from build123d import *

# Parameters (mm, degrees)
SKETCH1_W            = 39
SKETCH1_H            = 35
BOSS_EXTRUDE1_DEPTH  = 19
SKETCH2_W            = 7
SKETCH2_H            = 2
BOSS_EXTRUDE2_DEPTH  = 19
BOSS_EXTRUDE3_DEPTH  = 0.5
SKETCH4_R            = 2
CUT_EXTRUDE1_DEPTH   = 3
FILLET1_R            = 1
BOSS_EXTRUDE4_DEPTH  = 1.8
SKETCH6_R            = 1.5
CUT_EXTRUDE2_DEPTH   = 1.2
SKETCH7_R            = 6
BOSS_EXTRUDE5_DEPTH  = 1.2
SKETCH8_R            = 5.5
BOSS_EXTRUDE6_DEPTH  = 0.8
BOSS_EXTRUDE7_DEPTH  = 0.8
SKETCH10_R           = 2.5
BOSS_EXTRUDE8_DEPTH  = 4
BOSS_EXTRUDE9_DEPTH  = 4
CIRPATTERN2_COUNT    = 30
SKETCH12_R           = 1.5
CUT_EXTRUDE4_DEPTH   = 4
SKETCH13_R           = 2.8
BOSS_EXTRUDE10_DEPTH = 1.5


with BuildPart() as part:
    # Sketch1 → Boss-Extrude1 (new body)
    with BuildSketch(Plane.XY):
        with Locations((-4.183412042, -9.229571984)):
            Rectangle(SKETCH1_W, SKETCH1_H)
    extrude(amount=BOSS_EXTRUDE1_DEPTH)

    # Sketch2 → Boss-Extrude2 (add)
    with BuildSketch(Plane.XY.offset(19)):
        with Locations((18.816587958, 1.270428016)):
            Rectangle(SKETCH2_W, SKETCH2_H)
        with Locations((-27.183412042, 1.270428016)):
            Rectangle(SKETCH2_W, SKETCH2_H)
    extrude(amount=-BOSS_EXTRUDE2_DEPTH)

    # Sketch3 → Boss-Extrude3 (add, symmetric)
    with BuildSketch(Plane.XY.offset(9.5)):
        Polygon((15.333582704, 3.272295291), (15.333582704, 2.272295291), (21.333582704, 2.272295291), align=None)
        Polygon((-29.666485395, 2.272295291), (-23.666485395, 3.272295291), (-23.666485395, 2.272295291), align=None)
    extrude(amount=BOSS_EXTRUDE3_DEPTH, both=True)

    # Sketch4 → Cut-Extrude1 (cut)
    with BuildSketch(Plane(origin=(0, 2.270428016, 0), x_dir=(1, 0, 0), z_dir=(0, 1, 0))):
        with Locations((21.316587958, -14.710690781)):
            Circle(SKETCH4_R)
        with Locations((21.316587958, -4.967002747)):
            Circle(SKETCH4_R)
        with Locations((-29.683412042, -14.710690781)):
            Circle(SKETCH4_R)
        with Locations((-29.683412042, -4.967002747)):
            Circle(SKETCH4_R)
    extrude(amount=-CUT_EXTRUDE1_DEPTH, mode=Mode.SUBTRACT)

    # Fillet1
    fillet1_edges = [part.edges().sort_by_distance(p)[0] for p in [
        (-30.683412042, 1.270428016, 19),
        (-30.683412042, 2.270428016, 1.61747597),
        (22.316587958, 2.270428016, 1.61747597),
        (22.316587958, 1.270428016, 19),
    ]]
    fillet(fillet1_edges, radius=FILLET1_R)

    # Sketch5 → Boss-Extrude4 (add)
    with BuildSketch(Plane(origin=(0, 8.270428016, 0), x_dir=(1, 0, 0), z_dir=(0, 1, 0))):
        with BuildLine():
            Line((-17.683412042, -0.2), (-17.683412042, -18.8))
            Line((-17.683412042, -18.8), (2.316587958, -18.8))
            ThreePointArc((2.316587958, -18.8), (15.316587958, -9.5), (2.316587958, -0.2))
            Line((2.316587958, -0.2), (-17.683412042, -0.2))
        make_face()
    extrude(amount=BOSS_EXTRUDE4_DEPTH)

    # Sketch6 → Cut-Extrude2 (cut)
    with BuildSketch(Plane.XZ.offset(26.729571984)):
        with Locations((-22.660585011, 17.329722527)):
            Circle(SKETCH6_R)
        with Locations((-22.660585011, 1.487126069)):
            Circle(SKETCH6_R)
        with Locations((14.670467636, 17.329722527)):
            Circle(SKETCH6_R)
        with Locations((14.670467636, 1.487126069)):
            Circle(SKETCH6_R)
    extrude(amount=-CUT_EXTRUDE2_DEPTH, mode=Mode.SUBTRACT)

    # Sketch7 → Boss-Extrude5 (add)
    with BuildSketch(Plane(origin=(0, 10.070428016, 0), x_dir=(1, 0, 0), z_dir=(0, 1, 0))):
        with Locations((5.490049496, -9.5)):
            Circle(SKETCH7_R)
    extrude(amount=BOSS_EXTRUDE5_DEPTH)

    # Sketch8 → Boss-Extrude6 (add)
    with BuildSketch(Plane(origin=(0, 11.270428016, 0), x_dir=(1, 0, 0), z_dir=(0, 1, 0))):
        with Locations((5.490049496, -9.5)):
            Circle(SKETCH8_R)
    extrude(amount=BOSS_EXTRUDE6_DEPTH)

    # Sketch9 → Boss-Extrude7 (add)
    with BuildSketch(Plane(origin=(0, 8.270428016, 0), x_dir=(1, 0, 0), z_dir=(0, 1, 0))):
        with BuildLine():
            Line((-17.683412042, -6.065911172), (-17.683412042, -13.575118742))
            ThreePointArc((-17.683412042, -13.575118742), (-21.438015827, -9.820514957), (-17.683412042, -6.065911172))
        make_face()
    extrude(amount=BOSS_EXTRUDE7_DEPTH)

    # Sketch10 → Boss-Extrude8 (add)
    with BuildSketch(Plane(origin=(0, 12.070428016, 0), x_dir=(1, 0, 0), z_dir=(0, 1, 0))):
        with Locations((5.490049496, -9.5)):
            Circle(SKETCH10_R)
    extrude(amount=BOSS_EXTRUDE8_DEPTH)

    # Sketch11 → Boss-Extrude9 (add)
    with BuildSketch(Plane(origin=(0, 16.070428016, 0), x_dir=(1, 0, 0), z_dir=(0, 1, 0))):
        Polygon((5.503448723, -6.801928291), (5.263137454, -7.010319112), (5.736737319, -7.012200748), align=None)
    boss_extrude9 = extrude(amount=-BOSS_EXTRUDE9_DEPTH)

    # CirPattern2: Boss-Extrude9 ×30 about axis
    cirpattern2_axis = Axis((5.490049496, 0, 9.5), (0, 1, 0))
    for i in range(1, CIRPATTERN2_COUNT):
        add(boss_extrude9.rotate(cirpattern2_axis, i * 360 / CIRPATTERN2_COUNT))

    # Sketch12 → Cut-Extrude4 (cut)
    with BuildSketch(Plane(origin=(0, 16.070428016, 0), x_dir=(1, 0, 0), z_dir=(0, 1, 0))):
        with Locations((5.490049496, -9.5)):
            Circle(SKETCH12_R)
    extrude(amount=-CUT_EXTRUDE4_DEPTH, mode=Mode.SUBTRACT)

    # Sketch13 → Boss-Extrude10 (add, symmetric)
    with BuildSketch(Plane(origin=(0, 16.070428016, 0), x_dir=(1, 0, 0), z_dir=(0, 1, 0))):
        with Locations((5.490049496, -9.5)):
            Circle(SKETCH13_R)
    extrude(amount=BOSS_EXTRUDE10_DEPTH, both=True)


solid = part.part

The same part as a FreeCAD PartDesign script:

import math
import FreeCAD as App
import Part
import Sketcher
from FreeCAD import Vector
Q = App.Units.Quantity


def edges_at(feature, points):
    """Names of the edges that pass closest to the given points."""
    edges = feature.Shape.Edges
    near = lambda p: min(range(len(edges)), key=lambda i: edges[i].distToShape(Part.Vertex(*p))[0])
    return sorted({f"Edge{near(p) + 1}" for p in points})

doc = App.newDocument("Part")
body = doc.addObject("PartDesign::Body", "Body")
body.AllowCompound = True

sketch1 = body.newObject("Sketcher::SketchObject", "Sketch")
sketch1.AttachmentSupport = (doc.getObject("XY_Plane"), [""])
sketch1.MapMode = "FlatFace"
sketch1.addGeometry(Part.LineSegment(Vector(-23.683412, 8.270428, 0), Vector(-23.683412, -26.729572, 0)), False)
sketch1.addGeometry(Part.LineSegment(Vector(-23.683412, -26.729572, 0), Vector(15.316588, -26.729572, 0)), False)
sketch1.addGeometry(Part.LineSegment(Vector(15.316588, -26.729572, 0), Vector(15.316588, 8.270428, 0)), False)
sketch1.addGeometry(Part.LineSegment(Vector(15.316588, 8.270428, 0), Vector(-23.683412, 8.270428, 0)), False)
sketch1.addConstraint(Sketcher.Constraint("Coincident", 0, 2, 1, 1))
sketch1.addConstraint(Sketcher.Constraint("Coincident", 1, 2, 2, 1))
sketch1.addConstraint(Sketcher.Constraint("Coincident", 2, 2, 3, 1))
sketch1.addConstraint(Sketcher.Constraint("Coincident", 3, 2, 0, 1))
sketch1.addConstraint(Sketcher.Constraint("Vertical", 0))
sketch1.addConstraint(Sketcher.Constraint("Horizontal", 1))
sketch1.addConstraint(Sketcher.Constraint("Vertical", 2))
sketch1.addConstraint(Sketcher.Constraint("Horizontal", 3))
sketch1.addConstraint(Sketcher.Constraint("DistanceX", 1, 1, 1, 2, Q("39 mm")))
sketch1.addConstraint(Sketcher.Constraint("DistanceY", 0, 2, 0, 1, Q("35 mm")))
sketch1.addConstraint(Sketcher.Constraint("DistanceY", 0, 2, -1, 1, Q("26.729572 mm")))
sketch1.addConstraint(Sketcher.Constraint("DistanceX", 0, 2, -1, 1, Q("23.683412 mm")))
pad1 = body.newObject("PartDesign::Pad", "Pad")
pad1.Profile = sketch1
pad1.Length = 19

sketch2 = body.newObject("Sketcher::SketchObject", "Sketch001")
sketch2.AttachmentSupport = (doc.getObject("XY_Plane"), [""])
sketch2.MapMode = "FlatFace"
sketch2.AttachmentOffset = App.Placement(Vector(0, 0, 19), App.Rotation())
sketch2.addGeometry(Part.LineSegment(Vector(15.316588, 2.270428, 0), Vector(15.316588, 0.270428, 0)), False)
sketch2.addGeometry(Part.LineSegment(Vector(15.316588, 0.270428, 0), Vector(22.316588, 0.270428, 0)), False)
sketch2.addGeometry(Part.LineSegment(Vector(22.316588, 0.270428, 0), Vector(22.316588, 2.270428, 0)), False)
sketch2.addGeometry(Part.LineSegment(Vector(22.316588, 2.270428, 0), Vector(15.316588, 2.270428, 0)), False)
sketch2.addGeometry(Part.LineSegment(Vector(-30.683412, 2.270428, 0), Vector(-30.683412, 0.270428, 0)), False)
sketch2.addGeometry(Part.LineSegment(Vector(-30.683412, 0.270428, 0), Vector(-23.683412, 0.270428, 0)), False)
sketch2.addGeometry(Part.LineSegment(Vector(-23.683412, 0.270428, 0), Vector(-23.683412, 2.270428, 0)), False)
sketch2.addGeometry(Part.LineSegment(Vector(-23.683412, 2.270428, 0), Vector(-30.683412, 2.270428, 0)), False)
sketch2.addConstraint(Sketcher.Constraint("Coincident", 0, 2, 1, 1))
sketch2.addConstraint(Sketcher.Constraint("Coincident", 1, 2, 2, 1))
sketch2.addConstraint(Sketcher.Constraint("Coincident", 2, 2, 3, 1))
sketch2.addConstraint(Sketcher.Constraint("Coincident", 3, 2, 0, 1))
sketch2.addConstraint(Sketcher.Constraint("Coincident", 4, 2, 5, 1))
sketch2.addConstraint(Sketcher.Constraint("Coincident", 5, 2, 6, 1))
sketch2.addConstraint(Sketcher.Constraint("Coincident", 6, 2, 7, 1))
sketch2.addConstraint(Sketcher.Constraint("Coincident", 7, 2, 4, 1))
sketch2.addConstraint(Sketcher.Constraint("Vertical", 0))
sketch2.addConstraint(Sketcher.Constraint("Horizontal", 1))
sketch2.addConstraint(Sketcher.Constraint("Vertical", 2))
sketch2.addConstraint(Sketcher.Constraint("Horizontal", 3))
sketch2.addConstraint(Sketcher.Constraint("Vertical", 4))
sketch2.addConstraint(Sketcher.Constraint("Horizontal", 5))
sketch2.addConstraint(Sketcher.Constraint("Vertical", 6))
sketch2.addConstraint(Sketcher.Constraint("Horizontal", 7))
sketch2.addConstraint(Sketcher.Constraint("Horizontal", 1, 2, 4, 2))
sketch2.addConstraint(Sketcher.Constraint("Horizontal", 3, 2, 6, 2))
sketch2.addConstraint(Sketcher.Constraint("Equal", 3, 5))
sketch2.addConstraint(Sketcher.Constraint("DistanceX", 1, 1, 1, 2, Q("7 mm")))
sketch2.addConstraint(Sketcher.Constraint("DistanceY", 0, 2, 0, 1, Q("2 mm")))
sketch2.addConstraint(Sketcher.Constraint("DistanceX", 4, 2, 0, 2, Q("46 mm")))
sketch2.addConstraint(Sketcher.Constraint("DistanceY", -1, 1, 0, 2, Q("0.270428 mm")))
sketch2.addConstraint(Sketcher.Constraint("DistanceX", -1, 1, 0, 2, Q("15.316588 mm")))
pad2 = body.newObject("PartDesign::Pad", "Pad001")
pad2.Profile = sketch2
pad2.Length = 19
pad2.Reversed = True

sketch3 = body.newObject("Sketcher::SketchObject", "Sketch002")
sketch3.AttachmentSupport = (doc.getObject("XY_Plane"), [""])
sketch3.MapMode = "FlatFace"
sketch3.AttachmentOffset = App.Placement(Vector(0, 0, 9.5), App.Rotation())
sketch3.addGeometry(Part.LineSegment(Vector(15.333583, 3.272295, 0), Vector(15.333583, 2.272295, 0)), False)
sketch3.addGeometry(Part.LineSegment(Vector(15.333583, 2.272295, 0), Vector(21.333583, 2.272295, 0)), False)
sketch3.addGeometry(Part.LineSegment(Vector(21.333583, 2.272295, 0), Vector(15.333583, 3.272295, 0)), False)
sketch3.addGeometry(Part.LineSegment(Vector(-23.666485, 3.272295, 0), Vector(-29.666485, 2.272295, 0)), False)
sketch3.addGeometry(Part.LineSegment(Vector(-29.666485, 2.272295, 0), Vector(-23.666485, 2.272295, 0)), False)
sketch3.addGeometry(Part.LineSegment(Vector(-23.666485, 2.272295, 0), Vector(-23.666485, 3.272295, 0)), False)
sketch3.addConstraint(Sketcher.Constraint("Coincident", 0, 2, 1, 1))
sketch3.addConstraint(Sketcher.Constraint("Coincident", 1, 2, 2, 1))
sketch3.addConstraint(Sketcher.Constraint("Coincident", 2, 2, 0, 1))
sketch3.addConstraint(Sketcher.Constraint("Coincident", 3, 2, 4, 1))
sketch3.addConstraint(Sketcher.Constraint("Coincident", 4, 2, 5, 1))
sketch3.addConstraint(Sketcher.Constraint("Coincident", 5, 2, 3, 1))
sketch3.addConstraint(Sketcher.Constraint("Vertical", 0))
sketch3.addConstraint(Sketcher.Constraint("Horizontal", 1))
sketch3.addConstraint(Sketcher.Constraint("Horizontal", 4))
sketch3.addConstraint(Sketcher.Constraint("Vertical", 5))
sketch3.addConstraint(Sketcher.Constraint("Horizontal", 1, 2, 3, 2))
sketch3.addConstraint(Sketcher.Constraint("Horizontal", 2, 2, 5, 2))
sketch3.addConstraint(Sketcher.Constraint("Equal", 1, 4))
sketch3.addConstraint(Sketcher.Constraint("DistanceX", 1, 1, 1, 2, Q("6 mm")))
sketch3.addConstraint(Sketcher.Constraint("DistanceY", 0, 2, 0, 1, Q("1 mm")))
sketch3.addConstraint(Sketcher.Constraint("DistanceX", 3, 2, 0, 2, Q("45.000068 mm")))
sketch3.addConstraint(Sketcher.Constraint("DistanceX", -1, 1, 0, 2, Q("15.333583 mm")))
sketch3.addConstraint(Sketcher.Constraint("DistanceY", -1, 1, 0, 2, Q("2.272295 mm")))
pad3 = body.newObject("PartDesign::Pad", "Pad002")
pad3.Profile = sketch3
pad3.Length = 1
pad3.Midplane = True

sketch4 = body.newObject("Sketcher::SketchObject", "Sketch003")
sketch4.AttachmentSupport = (doc.getObject("XZ_Plane"), [""])
sketch4.MapMode = "FlatFace"
sketch4.AttachmentOffset = App.Placement(Vector(0, 0, -2.270428), App.Rotation())
sketch4.addGeometry(Part.Circle(Vector(21.316588, 14.710691, 0), Vector(0, 0, 1), 2), False)
sketch4.addGeometry(Part.Circle(Vector(21.316588, 4.967003, 0), Vector(0, 0, 1), 2), False)
sketch4.addGeometry(Part.Circle(Vector(-29.683412, 14.710691, 0), Vector(0, 0, 1), 2), False)
sketch4.addGeometry(Part.Circle(Vector(-29.683412, 4.967003, 0), Vector(0, 0, 1), 2), False)
sketch4.addConstraint(Sketcher.Constraint("Equal", 0, 1))
sketch4.addConstraint(Sketcher.Constraint("Equal", 1, 2))
sketch4.addConstraint(Sketcher.Constraint("Equal", 2, 3))
sketch4.addConstraint(Sketcher.Constraint("Horizontal", 0, 3, 2, 3))
sketch4.addConstraint(Sketcher.Constraint("Horizontal", 1, 3, 3, 3))
sketch4.addConstraint(Sketcher.Constraint("Vertical", 0, 3, 1, 3))
sketch4.addConstraint(Sketcher.Constraint("Vertical", 2, 3, 3, 3))
sketch4.addConstraint(Sketcher.Constraint("Diameter", 0, Q("4 mm")))
sketch4.addConstraint(Sketcher.Constraint("DistanceX", 2, 3, 0, 3, Q("51 mm")))
sketch4.addConstraint(Sketcher.Constraint("DistanceY", -1, 1, 0, 3, Q("14.710691 mm")))
sketch4.addConstraint(Sketcher.Constraint("DistanceY", 1, 3, 0, 3, Q("9.743688 mm")))
sketch4.addConstraint(Sketcher.Constraint("DistanceX", -1, 1, 0, 3, Q("21.316588 mm")))
pocket1 = body.newObject("PartDesign::Pocket", "Pocket")
pocket1.Profile = sketch4
pocket1.Length = 3
pocket1.Reversed = True
doc.recompute()

fillet = body.newObject("PartDesign::Fillet", "Fillet")
fillet.Base = (pocket1, edges_at(pocket1, [
    (-30.683, 1.27, 19),
    (-30.683, 2.27, 1.617),
    (22.317, 2.27, 1.617),
    (22.317, 1.27, 19),
]))
fillet.Radius = 1

sketch5 = body.newObject("Sketcher::SketchObject", "Sketch004")
sketch5.AttachmentSupport = (doc.getObject("XZ_Plane"), [""])
sketch5.MapMode = "FlatFace"
sketch5.AttachmentOffset = App.Placement(Vector(0, 0, -8.270428), App.Rotation())
sketch5.addGeometry(Part.LineSegment(Vector(-17.683412, 0.2, 0), Vector(-17.683412, 18.8, 0)), False)
sketch5.addGeometry(Part.LineSegment(Vector(-17.683412, 18.8, 0), Vector(2.316588, 18.8, 0)), False)
sketch5.addGeometry(Part.ArcOfCircle(Part.Circle(Vector(5.490049, 9.5, 0), Vector(0, 0, 1), 9.826538), math.radians(-108.841305), math.radians(108.841305)), False)
sketch5.addGeometry(Part.LineSegment(Vector(2.316588, 0.2, 0), Vector(-17.683412, 0.2, 0)), False)
sketch5.addConstraint(Sketcher.Constraint("Coincident", 0, 2, 1, 1))
sketch5.addConstraint(Sketcher.Constraint("Coincident", 1, 2, 2, 2))
sketch5.addConstraint(Sketcher.Constraint("Coincident", 2, 1, 3, 1))
sketch5.addConstraint(Sketcher.Constraint("Coincident", 3, 2, 0, 1))
sketch5.addConstraint(Sketcher.Constraint("Vertical", 0))
sketch5.addConstraint(Sketcher.Constraint("Horizontal", 1))
sketch5.addConstraint(Sketcher.Constraint("Horizontal", 3))
sketch5.addConstraint(Sketcher.Constraint("Vertical", 1, 2, 2, 1))
sketch5.addConstraint(Sketcher.Constraint("DistanceX", 1, 1, 1, 2, Q("20 mm")))
sketch5.addConstraint(Sketcher.Constraint("DistanceY", 0, 1, 0, 2, Q("18.6 mm")))
sketch5.addConstraint(Sketcher.Constraint("DistanceY", -1, 1, 2, 3, Q("9.5 mm")))
sketch5.addConstraint(Sketcher.Constraint("Radius", 2, Q("9.826538 mm")))
sketch5.addConstraint(Sketcher.Constraint("DistanceX", -1, 1, 2, 3, Q("5.490049 mm")))
pad4 = body.newObject("PartDesign::Pad", "Pad003")
pad4.Profile = sketch5
pad4.Length = 1.8
pad4.Reversed = True

sketch6 = body.newObject("Sketcher::SketchObject", "Sketch005")
sketch6.AttachmentSupport = (doc.getObject("XZ_Plane"), [""])
sketch6.MapMode = "FlatFace"
sketch6.AttachmentOffset = App.Placement(Vector(0, 0, 26.729572), App.Rotation())
sketch6.addGeometry(Part.Circle(Vector(-22.660585, 17.329723, 0), Vector(0, 0, 1), 1.5), False)
sketch6.addGeometry(Part.Circle(Vector(-22.660585, 1.487126, 0), Vector(0, 0, 1), 1.5), False)
sketch6.addGeometry(Part.Circle(Vector(14.670468, 17.329723, 0), Vector(0, 0, 1), 1.5), False)
sketch6.addGeometry(Part.Circle(Vector(14.670468, 1.487126, 0), Vector(0, 0, 1), 1.5), False)
sketch6.addConstraint(Sketcher.Constraint("Equal", 0, 1))
sketch6.addConstraint(Sketcher.Constraint("Equal", 1, 2))
sketch6.addConstraint(Sketcher.Constraint("Equal", 2, 3))
sketch6.addConstraint(Sketcher.Constraint("Horizontal", 0, 3, 2, 3))
sketch6.addConstraint(Sketcher.Constraint("Horizontal", 1, 3, 3, 3))
sketch6.addConstraint(Sketcher.Constraint("Vertical", 0, 3, 1, 3))
sketch6.addConstraint(Sketcher.Constraint("Vertical", 2, 3, 3, 3))
sketch6.addConstraint(Sketcher.Constraint("Diameter", 0, Q("3 mm")))
sketch6.addConstraint(Sketcher.Constraint("DistanceX", 0, 3, -1, 1, Q("22.660585 mm")))
sketch6.addConstraint(Sketcher.Constraint("DistanceY", -1, 1, 0, 3, Q("17.329723 mm")))
sketch6.addConstraint(Sketcher.Constraint("DistanceY", -1, 1, 1, 3, Q("1.487126 mm")))
sketch6.addConstraint(Sketcher.Constraint("DistanceX", -1, 1, 2, 3, Q("14.670468 mm")))
pocket2 = body.newObject("PartDesign::Pocket", "Pocket001")
pocket2.Profile = sketch6
pocket2.Length = 1.2

sketch7 = body.newObject("Sketcher::SketchObject", "Sketch006")
sketch7.AttachmentSupport = (doc.getObject("XZ_Plane"), [""])
sketch7.MapMode = "FlatFace"
sketch7.AttachmentOffset = App.Placement(Vector(0, 0, -10.070428), App.Rotation())
sketch7.addGeometry(Part.Circle(Vector(5.490049, 9.5, 0), Vector(0, 0, 1), 6), False)
sketch7.addConstraint(Sketcher.Constraint("Diameter", 0, Q("12 mm")))
sketch7.addConstraint(Sketcher.Constraint("DistanceY", -1, 1, 0, 3, Q("9.5 mm")))
sketch7.addConstraint(Sketcher.Constraint("DistanceX", -1, 1, 0, 3, Q("5.490049 mm")))
pad5 = body.newObject("PartDesign::Pad", "Pad004")
pad5.Profile = sketch7
pad5.Length = 1.2
pad5.Reversed = True

sketch8 = body.newObject("Sketcher::SketchObject", "Sketch007")
sketch8.AttachmentSupport = (doc.getObject("XZ_Plane"), [""])
sketch8.MapMode = "FlatFace"
sketch8.AttachmentOffset = App.Placement(Vector(0, 0, -11.270428), App.Rotation())
sketch8.addGeometry(Part.Circle(Vector(5.490049, 9.5, 0), Vector(0, 0, 1), 5.5), False)
sketch8.addConstraint(Sketcher.Constraint("Diameter", 0, Q("11 mm")))
sketch8.addConstraint(Sketcher.Constraint("DistanceY", -1, 1, 0, 3, Q("9.5 mm")))
sketch8.addConstraint(Sketcher.Constraint("DistanceX", -1, 1, 0, 3, Q("5.490049 mm")))
pad6 = body.newObject("PartDesign::Pad", "Pad005")
pad6.Profile = sketch8
pad6.Length = 0.8
pad6.Reversed = True

sketch9 = body.newObject("Sketcher::SketchObject", "Sketch008")
sketch9.AttachmentSupport = (doc.getObject("XZ_Plane"), [""])
sketch9.MapMode = "FlatFace"
sketch9.AttachmentOffset = App.Placement(Vector(0, 0, -8.270428), App.Rotation())
sketch9.addGeometry(Part.LineSegment(Vector(-17.683412, 13.575119, 0), Vector(-17.683412, 6.065911, 0)), False)
sketch9.addGeometry(Part.ArcOfCircle(Part.Circle(Vector(-17.683412, 9.820515, 0), Vector(0, 0, 1), 3.754604), math.radians(90), math.radians(270)), False)
sketch9.addConstraint(Sketcher.Constraint("Coincident", 0, 1, 1, 1))
sketch9.addConstraint(Sketcher.Constraint("Coincident", 1, 2, 0, 2))
sketch9.addConstraint(Sketcher.Constraint("Vertical", 0))
sketch9.addConstraint(Sketcher.Constraint("Vertical", 1, 3, 0, 1))
sketch9.addConstraint(Sketcher.Constraint("Radius", 1, Q("3.754604 mm")))
sketch9.addConstraint(Sketcher.Constraint("DistanceY", -1, 1, 0, 1, Q("13.575119 mm")))
sketch9.addConstraint(Sketcher.Constraint("DistanceX", 1, 3, -1, 1, Q("17.683412 mm")))
pad7 = body.newObject("PartDesign::Pad", "Pad006")
pad7.Profile = sketch9
pad7.Length = 0.8
pad7.Reversed = True

sketch10 = body.newObject("Sketcher::SketchObject", "Sketch009")
sketch10.AttachmentSupport = (doc.getObject("XZ_Plane"), [""])
sketch10.MapMode = "FlatFace"
sketch10.AttachmentOffset = App.Placement(Vector(0, 0, -12.070428), App.Rotation())
sketch10.addGeometry(Part.Circle(Vector(5.490049, 9.5, 0), Vector(0, 0, 1), 2.5), False)
sketch10.addConstraint(Sketcher.Constraint("Diameter", 0, Q("5 mm")))
sketch10.addConstraint(Sketcher.Constraint("DistanceY", -1, 1, 0, 3, Q("9.5 mm")))
sketch10.addConstraint(Sketcher.Constraint("DistanceX", -1, 1, 0, 3, Q("5.490049 mm")))
pad8 = body.newObject("PartDesign::Pad", "Pad007")
pad8.Profile = sketch10
pad8.Length = 4
pad8.Reversed = True

sketch11 = body.newObject("Sketcher::SketchObject", "Sketch010")
sketch11.AttachmentSupport = (doc.getObject("XZ_Plane"), [""])
sketch11.MapMode = "FlatFace"
sketch11.AttachmentOffset = App.Placement(Vector(0, 0, -16.070428), App.Rotation())
sketch11.addGeometry(Part.LineSegment(Vector(5.503449, 6.801928, 0), Vector(5.263137, 7.010319, 0)), False)
sketch11.addGeometry(Part.LineSegment(Vector(5.263137, 7.010319, 0), Vector(5.736737, 7.012201, 0)), False)
sketch11.addGeometry(Part.LineSegment(Vector(5.736737, 7.012201, 0), Vector(5.503449, 6.801928, 0)), False)
sketch11.addConstraint(Sketcher.Constraint("Coincident", 0, 2, 1, 1))
sketch11.addConstraint(Sketcher.Constraint("Coincident", 1, 2, 2, 1))
sketch11.addConstraint(Sketcher.Constraint("Coincident", 2, 2, 0, 1))
sketch11.addConstraint(Sketcher.Constraint("DistanceY", -1, 1, 1, 2, Q("7.012201 mm")))
sketch11.addConstraint(Sketcher.Constraint("DistanceX", 0, 2, 1, 2, Q("0.4736 mm")))
sketch11.addConstraint(Sketcher.Constraint("DistanceY", -1, 1, 0, 2, Q("7.010319 mm")))
sketch11.addConstraint(Sketcher.Constraint("DistanceX", -1, 1, 2, 2, Q("5.503449 mm")))
sketch11.addConstraint(Sketcher.Constraint("DistanceY", -1, 1, 2, 2, Q("6.801928 mm")))
sketch11.addConstraint(Sketcher.Constraint("DistanceX", 2, 2, 1, 2, Q("0.233289 mm")))
pad9 = body.newObject("PartDesign::Pad", "Pad008")
pad9.Profile = sketch11
pad9.Length = 4
doc.recompute()

datumline = body.newObject("PartDesign::Line", "DatumLine")
datumline.Placement = App.Placement(Vector(5.490049, 0, 9.5), App.Rotation(Vector(0, 0, 1), Vector(0, 1, 0)))
polarpattern = body.newObject("PartDesign::PolarPattern", "PolarPattern")
polarpattern.Originals = [pad9]
polarpattern.Axis = (datumline, [""])
polarpattern.Angle = 360
polarpattern.Occurrences = 30
body.Tip = polarpattern

sketch12 = body.newObject("Sketcher::SketchObject", "Sketch011")
sketch12.AttachmentSupport = (doc.getObject("XZ_Plane"), [""])
sketch12.MapMode = "FlatFace"
sketch12.AttachmentOffset = App.Placement(Vector(0, 0, -16.070428), App.Rotation())
sketch12.addGeometry(Part.Circle(Vector(5.490049, 9.5, 0), Vector(0, 0, 1), 1.5), False)
sketch12.addConstraint(Sketcher.Constraint("Diameter", 0, Q("3 mm")))
sketch12.addConstraint(Sketcher.Constraint("DistanceY", -1, 1, 0, 3, Q("9.5 mm")))
sketch12.addConstraint(Sketcher.Constraint("DistanceX", -1, 1, 0, 3, Q("5.490049 mm")))
pocket3 = body.newObject("PartDesign::Pocket", "Pocket002")
pocket3.Profile = sketch12
pocket3.Length = 4
pocket3.Reversed = True

sketch13 = body.newObject("Sketcher::SketchObject", "Sketch012")
sketch13.AttachmentSupport = (doc.getObject("XZ_Plane"), [""])
sketch13.MapMode = "FlatFace"
sketch13.AttachmentOffset = App.Placement(Vector(0, 0, -16.070428), App.Rotation())
sketch13.addGeometry(Part.Circle(Vector(5.490049, 9.5, 0), Vector(0, 0, 1), 2.8), False)
sketch13.addConstraint(Sketcher.Constraint("Diameter", 0, Q("5.6 mm")))
sketch13.addConstraint(Sketcher.Constraint("DistanceY", -1, 1, 0, 3, Q("9.5 mm")))
sketch13.addConstraint(Sketcher.Constraint("DistanceX", -1, 1, 0, 3, Q("5.490049 mm")))
pad10 = body.newObject("PartDesign::Pad", "Pad009")
pad10.Profile = sketch13
pad10.Length = 3
pad10.Midplane = True

doc.recompute()
